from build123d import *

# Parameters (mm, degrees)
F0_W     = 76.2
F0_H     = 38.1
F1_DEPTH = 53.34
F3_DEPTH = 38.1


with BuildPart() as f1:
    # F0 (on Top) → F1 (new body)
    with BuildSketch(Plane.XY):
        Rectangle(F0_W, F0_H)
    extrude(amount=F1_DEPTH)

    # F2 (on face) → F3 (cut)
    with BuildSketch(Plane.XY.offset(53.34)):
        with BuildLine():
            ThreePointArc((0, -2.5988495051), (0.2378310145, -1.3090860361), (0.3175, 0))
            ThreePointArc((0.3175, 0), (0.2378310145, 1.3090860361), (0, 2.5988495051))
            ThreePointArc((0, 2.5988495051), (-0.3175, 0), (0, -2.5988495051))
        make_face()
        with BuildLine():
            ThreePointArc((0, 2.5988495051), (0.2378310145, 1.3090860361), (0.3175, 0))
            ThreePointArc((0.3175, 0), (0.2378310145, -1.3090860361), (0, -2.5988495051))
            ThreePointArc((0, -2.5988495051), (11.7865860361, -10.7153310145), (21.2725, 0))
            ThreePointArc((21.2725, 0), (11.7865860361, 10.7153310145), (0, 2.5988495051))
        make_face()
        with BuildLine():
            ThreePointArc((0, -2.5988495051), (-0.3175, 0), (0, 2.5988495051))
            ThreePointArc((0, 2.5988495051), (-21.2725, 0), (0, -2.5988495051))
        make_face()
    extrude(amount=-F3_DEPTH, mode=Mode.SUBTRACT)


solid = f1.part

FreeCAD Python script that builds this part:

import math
import FreeCAD as App
import Part
import Sketcher
Q = App.Units.Quantity

doc = App.newDocument("Part")
body = doc.addObject("PartDesign::Body", "Body")

# Sketch on XY plane
sketch1 = body.newObject("Sketcher::SketchObject", "Sketch")
sketch1.AttachmentSupport = (doc.getObject("XY_Plane"), [""])
sketch1.MapMode = "FlatFace"
sketch1.addGeometry([
    Part.LineSegment(App.Vector(-38, 19, 0), App.Vector(-38, -19, 0)),
    Part.LineSegment(App.Vector(-38, -19, 0), App.Vector(38, -19, 0)),
    Part.LineSegment(App.Vector(38, -19, 0), App.Vector(38, 19, 0)),
    Part.LineSegment(App.Vector(38, 19, 0), App.Vector(-38, 19, 0)),
], False)
sketch1.addConstraint([
    Sketcher.Constraint("Coincident", 0, 2, 1, 1),
    Sketcher.Constraint("Coincident", 1, 2, 2, 1),
    Sketcher.Constraint("Coincident", 2, 2, 3, 1),
    Sketcher.Constraint("Coincident", 3, 2, 0, 1),
    Sketcher.Constraint("Vertical", 0),
    Sketcher.Constraint("Horizontal", 1),
    Sketcher.Constraint("Vertical", 2),
    Sketcher.Constraint("Horizontal", 3),
    Sketcher.Constraint("Symmetric", 0, 2, 2, 2, -1, 1),
    Sketcher.Constraint("DistanceX", 1, 1, 1, 2, Q("3 in")),
    Sketcher.Constraint("DistanceY", 0, 2, 0, 1, Q("1.5 in")),
])
pad1 = body.newObject("PartDesign::Pad", "Pad")
pad1.Profile = sketch1
pad1.Length = Q("2.1 in")

# Sketch on XY plane
sketch2 = body.newObject("Sketcher::SketchObject", "Sketch001")
sketch2.AttachmentSupport = (doc.getObject("XY_Plane"), [""])
sketch2.MapMode = "FlatFace"
sketch2.AttachmentOffset = App.Placement(App.Vector(0, 0, 2.1 * 25.4), App.Rotation())
sketch2.addGeometry([
    Part.ArcOfCircle(Part.Circle(App.Vector(10, 0, 0), App.Vector(0, 0, 1), 11), math.radians(-166), math.radians(0)),
    Part.ArcOfCircle(Part.Circle(App.Vector(10, 0, 0), App.Vector(0, 0, 1), 11), math.radians(0), math.radians(166)),
    Part.ArcOfCircle(Part.Circle(App.Vector(-10, 0, 0), App.Vector(0, 0, 1), 11), math.radians(14), math.radians(346)),
], False)
sketch2.addConstraint([
    Sketcher.Constraint("Tangent", 0, 2, 1, 1),
    Sketcher.Constraint("Coincident", 1, 2, 2, 1),
    Sketcher.Constraint("Coincident", 2, 2, 0, 1),
    Sketcher.Constraint("Equal", 0, 1),
    Sketcher.Constraint("Equal", 1, 2),
    Sketcher.Constraint("Symmetric", 0, 3, 2, 3, -1, 1),
    Sketcher.Constraint("PointOnObject", 0, 3, -1),
    Sketcher.Constraint("PointOnObject", 0, 2, -1),
    Sketcher.Constraint("Radius", 0, Q("0.425 in")),
    Sketcher.Constraint("DistanceX", 2, 3, 0, 2, Q("1.25 in")),
])
pocket1 = body.newObject("PartDesign::Pocket", "Pocket")
pocket1.Profile = sketch2
pocket1.Length = Q("1.5 in")

doc.recompute()
